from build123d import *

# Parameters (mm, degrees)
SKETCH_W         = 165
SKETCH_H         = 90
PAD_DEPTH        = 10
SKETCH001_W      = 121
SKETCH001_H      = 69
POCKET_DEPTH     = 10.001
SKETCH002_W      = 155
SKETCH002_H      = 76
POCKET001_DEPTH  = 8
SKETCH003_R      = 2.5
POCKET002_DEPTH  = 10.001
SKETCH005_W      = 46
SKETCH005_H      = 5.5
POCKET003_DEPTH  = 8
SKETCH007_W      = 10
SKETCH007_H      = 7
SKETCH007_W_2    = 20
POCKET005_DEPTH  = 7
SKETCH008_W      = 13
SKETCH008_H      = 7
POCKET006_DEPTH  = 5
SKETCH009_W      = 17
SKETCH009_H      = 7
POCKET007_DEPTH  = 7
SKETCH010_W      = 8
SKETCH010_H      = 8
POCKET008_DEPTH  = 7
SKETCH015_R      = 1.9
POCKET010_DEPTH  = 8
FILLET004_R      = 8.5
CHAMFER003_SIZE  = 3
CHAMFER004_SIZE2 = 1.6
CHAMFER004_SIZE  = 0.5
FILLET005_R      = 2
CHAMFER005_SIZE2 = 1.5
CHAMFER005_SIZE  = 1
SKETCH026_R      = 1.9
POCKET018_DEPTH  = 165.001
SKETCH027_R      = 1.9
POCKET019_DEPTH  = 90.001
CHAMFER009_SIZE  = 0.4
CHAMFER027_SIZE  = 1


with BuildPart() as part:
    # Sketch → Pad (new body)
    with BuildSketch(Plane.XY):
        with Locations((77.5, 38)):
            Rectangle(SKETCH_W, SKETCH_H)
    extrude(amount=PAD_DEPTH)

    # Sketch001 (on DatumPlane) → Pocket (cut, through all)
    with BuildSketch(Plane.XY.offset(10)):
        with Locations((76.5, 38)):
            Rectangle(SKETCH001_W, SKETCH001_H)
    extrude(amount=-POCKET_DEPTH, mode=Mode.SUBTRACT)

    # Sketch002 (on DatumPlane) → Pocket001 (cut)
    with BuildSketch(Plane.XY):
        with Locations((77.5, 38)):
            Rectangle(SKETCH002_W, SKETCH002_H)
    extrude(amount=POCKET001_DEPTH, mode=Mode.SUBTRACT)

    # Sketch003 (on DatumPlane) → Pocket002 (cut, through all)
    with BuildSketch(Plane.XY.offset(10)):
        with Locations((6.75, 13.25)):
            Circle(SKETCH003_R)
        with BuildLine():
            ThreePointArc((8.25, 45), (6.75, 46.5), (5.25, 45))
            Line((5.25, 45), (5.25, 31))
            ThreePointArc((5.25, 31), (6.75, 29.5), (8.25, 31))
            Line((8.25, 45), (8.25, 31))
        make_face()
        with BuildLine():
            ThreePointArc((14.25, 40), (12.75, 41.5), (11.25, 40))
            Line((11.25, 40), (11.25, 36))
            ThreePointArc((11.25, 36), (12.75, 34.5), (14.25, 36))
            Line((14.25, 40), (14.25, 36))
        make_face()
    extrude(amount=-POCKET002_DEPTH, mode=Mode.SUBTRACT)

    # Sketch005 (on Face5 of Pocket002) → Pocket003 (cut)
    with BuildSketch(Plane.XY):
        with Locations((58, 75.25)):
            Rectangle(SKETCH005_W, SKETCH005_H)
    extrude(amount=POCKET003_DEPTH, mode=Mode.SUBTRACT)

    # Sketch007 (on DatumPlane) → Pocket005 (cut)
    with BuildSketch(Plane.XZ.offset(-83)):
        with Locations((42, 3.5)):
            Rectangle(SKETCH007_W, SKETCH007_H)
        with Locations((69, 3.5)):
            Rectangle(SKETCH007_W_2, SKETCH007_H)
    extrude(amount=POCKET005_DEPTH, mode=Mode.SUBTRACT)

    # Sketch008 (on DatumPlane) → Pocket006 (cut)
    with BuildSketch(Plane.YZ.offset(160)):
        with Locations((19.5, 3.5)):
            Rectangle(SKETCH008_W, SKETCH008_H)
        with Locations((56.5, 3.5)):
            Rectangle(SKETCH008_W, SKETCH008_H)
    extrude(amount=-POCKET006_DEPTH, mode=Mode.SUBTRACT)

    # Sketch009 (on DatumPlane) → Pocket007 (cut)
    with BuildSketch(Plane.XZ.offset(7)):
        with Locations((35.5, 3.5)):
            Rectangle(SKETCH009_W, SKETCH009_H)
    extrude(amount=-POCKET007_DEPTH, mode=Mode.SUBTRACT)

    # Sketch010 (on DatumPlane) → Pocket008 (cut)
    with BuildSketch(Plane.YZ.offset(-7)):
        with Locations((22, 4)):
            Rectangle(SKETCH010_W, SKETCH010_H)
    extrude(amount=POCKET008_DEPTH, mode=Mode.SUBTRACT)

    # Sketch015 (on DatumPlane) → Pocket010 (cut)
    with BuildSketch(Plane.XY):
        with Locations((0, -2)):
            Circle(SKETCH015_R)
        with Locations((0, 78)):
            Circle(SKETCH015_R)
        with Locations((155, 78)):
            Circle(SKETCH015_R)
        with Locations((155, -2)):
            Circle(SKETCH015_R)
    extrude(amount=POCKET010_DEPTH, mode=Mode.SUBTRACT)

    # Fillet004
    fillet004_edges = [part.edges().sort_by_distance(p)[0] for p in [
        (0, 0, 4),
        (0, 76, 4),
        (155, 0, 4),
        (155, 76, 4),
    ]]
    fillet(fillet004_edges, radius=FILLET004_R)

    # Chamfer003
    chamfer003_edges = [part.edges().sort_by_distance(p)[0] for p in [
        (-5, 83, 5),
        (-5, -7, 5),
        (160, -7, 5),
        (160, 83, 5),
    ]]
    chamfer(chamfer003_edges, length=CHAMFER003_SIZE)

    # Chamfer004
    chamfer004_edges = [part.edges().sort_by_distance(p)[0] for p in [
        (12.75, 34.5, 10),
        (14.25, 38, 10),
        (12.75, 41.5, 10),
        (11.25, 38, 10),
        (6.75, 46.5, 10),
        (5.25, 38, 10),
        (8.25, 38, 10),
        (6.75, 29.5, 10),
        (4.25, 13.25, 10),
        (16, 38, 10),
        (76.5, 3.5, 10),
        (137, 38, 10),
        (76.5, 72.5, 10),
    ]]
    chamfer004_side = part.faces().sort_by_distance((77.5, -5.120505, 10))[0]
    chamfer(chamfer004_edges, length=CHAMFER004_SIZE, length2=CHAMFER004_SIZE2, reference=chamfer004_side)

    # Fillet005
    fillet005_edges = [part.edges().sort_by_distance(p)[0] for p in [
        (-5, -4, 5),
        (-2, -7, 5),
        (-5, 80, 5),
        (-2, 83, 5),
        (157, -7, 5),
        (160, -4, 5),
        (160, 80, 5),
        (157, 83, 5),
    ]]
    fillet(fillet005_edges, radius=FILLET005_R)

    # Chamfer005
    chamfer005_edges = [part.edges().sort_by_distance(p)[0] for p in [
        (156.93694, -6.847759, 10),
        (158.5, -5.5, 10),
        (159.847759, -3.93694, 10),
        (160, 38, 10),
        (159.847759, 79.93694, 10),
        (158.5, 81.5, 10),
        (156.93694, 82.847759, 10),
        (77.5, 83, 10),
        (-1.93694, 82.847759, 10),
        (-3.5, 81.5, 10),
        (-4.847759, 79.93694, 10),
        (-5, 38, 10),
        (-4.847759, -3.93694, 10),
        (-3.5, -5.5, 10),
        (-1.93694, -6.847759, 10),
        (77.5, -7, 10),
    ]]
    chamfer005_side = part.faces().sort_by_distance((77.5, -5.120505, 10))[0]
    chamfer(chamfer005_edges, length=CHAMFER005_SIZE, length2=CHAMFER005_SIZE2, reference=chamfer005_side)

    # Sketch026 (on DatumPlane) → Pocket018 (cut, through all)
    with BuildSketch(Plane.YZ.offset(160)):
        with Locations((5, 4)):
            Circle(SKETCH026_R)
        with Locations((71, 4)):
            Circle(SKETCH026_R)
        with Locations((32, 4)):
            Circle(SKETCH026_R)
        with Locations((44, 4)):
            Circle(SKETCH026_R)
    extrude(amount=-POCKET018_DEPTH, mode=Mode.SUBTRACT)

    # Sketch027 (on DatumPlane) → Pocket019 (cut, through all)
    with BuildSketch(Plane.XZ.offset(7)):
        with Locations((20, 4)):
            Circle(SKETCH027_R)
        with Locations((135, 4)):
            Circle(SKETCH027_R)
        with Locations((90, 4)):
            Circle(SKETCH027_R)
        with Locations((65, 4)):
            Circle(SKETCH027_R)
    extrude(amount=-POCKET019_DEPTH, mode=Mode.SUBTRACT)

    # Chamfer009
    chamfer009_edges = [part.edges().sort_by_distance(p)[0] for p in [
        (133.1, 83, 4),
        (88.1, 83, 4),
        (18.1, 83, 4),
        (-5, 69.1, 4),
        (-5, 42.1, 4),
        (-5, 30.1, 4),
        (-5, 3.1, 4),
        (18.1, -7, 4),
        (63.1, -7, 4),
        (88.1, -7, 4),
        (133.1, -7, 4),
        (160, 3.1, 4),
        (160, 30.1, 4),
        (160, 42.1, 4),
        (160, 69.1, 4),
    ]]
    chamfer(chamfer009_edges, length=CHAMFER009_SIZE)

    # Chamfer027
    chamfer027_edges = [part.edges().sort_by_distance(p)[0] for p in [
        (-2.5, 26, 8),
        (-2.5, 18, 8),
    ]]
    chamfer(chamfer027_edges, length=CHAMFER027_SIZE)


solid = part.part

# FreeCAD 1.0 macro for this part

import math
import FreeCAD as App
import Part
import Sketcher

V = App.Vector
Q = App.Units.Quantity


def edges_at(feature, points):
    """Names of the edges that pass closest to the given points."""
    edges = feature.Shape.Edges
    near = lambda p: min(range(len(edges)), key=lambda i: edges[i].distToShape(Part.Vertex(*p))[0])
    return sorted({f"Edge{near(p) + 1}" for p in points})


def add_polygon(sketch, points):
    """Adds a closed chain of lines whose ends are joined by coincident constraints."""
    first, n = sketch.GeometryCount, len(points)
    for a, b in zip(points, points[1:] + points[:1]):
        sketch.addGeometry(Part.LineSegment(App.Vector(*a, 0), App.Vector(*b, 0)), False)
    for i in range(n):
        sketch.addConstraint(Sketcher.Constraint("Coincident", first + i, 2, first + (i + 1) % n, 1))

doc = App.newDocument("Part")
body = doc.addObject("PartDesign::Body", "Body")

sketch1 = body.newObject("Sketcher::SketchObject", "Sketch")
sketch1.AttachmentSupport = (doc.getObject("XY_Plane"), [""])
sketch1.MapMode = "FlatFace"
add_polygon(sketch1, [(-5, 83), (-5, -7), (160, -7), (160, 83)])
sketch1.addConstraint([
    Sketcher.Constraint("Vertical", 0),
    Sketcher.Constraint("Horizontal", 1),
    Sketcher.Constraint("Vertical", 2),
    Sketcher.Constraint("Horizontal", 3),
    Sketcher.Constraint("DistanceX", 1, 1, 1, 2, Q("165 mm")),
    Sketcher.Constraint("DistanceY", 0, 2, 0, 1, Q("90 mm")),
    Sketcher.Constraint("DistanceX", 0, 2, -1, 1, Q("5 mm")),
    Sketcher.Constraint("DistanceY", 0, 2, -1, 1, Q("7 mm")),
])
pad1 = body.newObject("PartDesign::Pad", "Pad")
pad1.Profile = sketch1
pad1.Length = 10

sketch2 = body.newObject("Sketcher::SketchObject", "Sketch001")
sketch2.AttachmentSupport = (doc.getObject("XY_Plane"), [""])
sketch2.MapMode = "FlatFace"
sketch2.AttachmentOffset = App.Placement(V(0, 0, 10), App.Rotation())
add_polygon(sketch2, [(16, 72), (16, 4), (137, 4), (137, 72)])
sketch2.addConstraint([
    Sketcher.Constraint("Vertical", 0),
    Sketcher.Constraint("Horizontal", 1),
    Sketcher.Constraint("Vertical", 2),
    Sketcher.Constraint("Horizontal", 3),
    Sketcher.Constraint("DistanceX", 1, 1, 1, 2, Q("121 mm")),
    Sketcher.Constraint("DistanceY", 0, 2, 0, 1, Q("69 mm")),
    Sketcher.Constraint("DistanceX", -1, 1, 0, 2, Q("16 mm")),
    Sketcher.Constraint("DistanceY", -1, 1, 0, 2, Q("3.5 mm")),
])
pocket1 = body.newObject("PartDesign::Pocket", "Pocket")
pocket1.Profile = sketch2
pocket1.Type = "ThroughAll"

sketch3 = body.newObject("Sketcher::SketchObject", "Sketch002")
sketch3.AttachmentSupport = (doc.getObject("XY_Plane"), [""])
sketch3.MapMode = "FlatFace"
add_polygon(sketch3, [(0, 76), (0, 0), (155, 0), (155, 76)])
sketch3.addConstraint([
    Sketcher.Constraint("Vertical", 0),
    Sketcher.Constraint("Horizontal", 1),
    Sketcher.Constraint("Vertical", 2),
    Sketcher.Constraint("Horizontal", 3),
    Sketcher.Constraint("Coincident", 0, 2, -1, 1),
    Sketcher.Constraint("DistanceX", 1, 1, 1, 2, Q("155 mm")),
    Sketcher.Constraint("DistanceY", 0, 2, 0, 1, Q("76 mm")),
])
pocket2 = body.newObject("PartDesign::Pocket", "Pocket001")
pocket2.Profile = sketch3
pocket2.Length = 8
pocket2.Reversed = True

sketch4 = body.newObject("Sketcher::SketchObject", "Sketch003")
sketch4.AttachmentSupport = (doc.getObject("XY_Plane"), [""])
sketch4.MapMode = "FlatFace"
sketch4.AttachmentOffset = App.Placement(V(0, 0, 10), App.Rotation())
sketch4.addGeometry([
    Part.Circle(V(6.8, 13.2, 0), V(0, 0, 1), 2.5),
    Part.ArcOfCircle(Part.Circle(V(6.8, 45, 0), V(0, 0, 1), 1.5), math.radians(0), math.radians(180)),
    Part.LineSegment(V(5.2, 45, 0), V(5.2, 31, 0)),
    Part.ArcOfCircle(Part.Circle(V(6.8, 31, 0), V(0, 0, 1), 1.5), math.radians(180), math.radians(360)),
    Part.LineSegment(V(8.2, 31, 0), V(8.2, 45, 0)),
    Part.ArcOfCircle(Part.Circle(V(12.8, 40, 0), V(0, 0, 1), 1.5), math.radians(0), math.radians(180)),
    Part.LineSegment(V(11.2, 40, 0), V(11.2, 36, 0)),
    Part.ArcOfCircle(Part.Circle(V(12.8, 36, 0), V(0, 0, 1), 1.5), math.radians(180), math.radians(360)),
    Part.LineSegment(V(14.2, 36, 0), V(14.2, 40, 0)),
], False)
sketch4.addConstraint([
    Sketcher.Constraint("Tangent", 1, 2, 2, 1),
    Sketcher.Constraint("Tangent", 2, 2, 3, 1),
    Sketcher.Constraint("Tangent", 3, 2, 4, 1),
    Sketcher.Constraint("Tangent", 4, 2, 1, 1),
    Sketcher.Constraint("Tangent", 5, 2, 6, 1),
    Sketcher.Constraint("Tangent", 6, 2, 7, 1),
    Sketcher.Constraint("Tangent", 7, 2, 8, 1),
    Sketcher.Constraint("Tangent", 8, 2, 5, 1),
    Sketcher.Constraint("Vertical", 2),
    Sketcher.Constraint("Vertical", 4),
    Sketcher.Constraint("Vertical", 6),
    Sketcher.Constraint("Vertical", 8),
    Sketcher.Constraint("Equal", 3, 5),
    Sketcher.Constraint("Vertical", 0, 3, 1, 3),
    Sketcher.Constraint("Diameter", 0, Q("5 mm")),
    Sketcher.Constraint("Radius", 1, Q("1.5 mm")),
    Sketcher.Constraint("DistanceY", 2, 2, 2, 1, Q("14 mm")),
    Sketcher.Constraint("DistanceY", 6, 2, 6, 1, Q("4 mm")),
    Sketcher.Constraint("DistanceY", -1, 1, 1, 3, Q("45 mm")),
    Sketcher.Constraint("DistanceY", -1, 1, 5, 3, Q("40 mm")),
    Sketcher.Constraint("DistanceX", 1, 3, 5, 3, Q("6 mm")),
    Sketcher.Constraint("DistanceX", -1, 1, 0, 3, Q("6.75 mm")),
    Sketcher.Constraint("DistanceY", -1, 1, 0, 3, Q("13.25 mm")),
])
pocket3 = body.newObject("PartDesign::Pocket", "Pocket002")
pocket3.Profile = sketch4
pocket3.Type = "ThroughAll"

sketch5 = body.newObject("Sketcher::SketchObject", "Sketch004")
sketch5.AttachmentSupport = (doc.getObject("XY_Plane"), [""])
sketch5.MapMode = "FlatFace"
add_polygon(sketch5, [(35, 78), (35, 72), (81, 72), (81, 78)])
sketch5.addConstraint([
    Sketcher.Constraint("Vertical", 0),
    Sketcher.Constraint("Horizontal", 1),
    Sketcher.Constraint("Vertical", 2),
    Sketcher.Constraint("Horizontal", 3),
    Sketcher.Constraint("DistanceX", 1, 1, 1, 2, Q("46 mm")),
    Sketcher.Constraint("DistanceY", 0, 2, 0, 1, Q("5.5 mm")),
    Sketcher.Constraint("DistanceX", -1, 1, 0, 2, Q("35 mm")),
    Sketcher.Constraint("DistanceY", -1, 1, 2, 2, Q("78 mm")),
])
pocket4 = body.newObject("PartDesign::Pocket", "Pocket003")
pocket4.Profile = sketch5
pocket4.Length = 8
pocket4.Reversed = True

sketch6 = body.newObject("Sketcher::SketchObject", "Sketch005")
sketch6.AttachmentSupport = (doc.getObject("XZ_Plane"), [""])
sketch6.MapMode = "FlatFace"
sketch6.AttachmentOffset = App.Placement(V(0, 0, -83), App.Rotation())
add_polygon(sketch6, [(37, 7), (37, 0), (47, 0), (47, 7)])
add_polygon(sketch6, [(59, 7), (59, 0), (79, 0), (79, 7)])
sketch6.addConstraint([
    Sketcher.Constraint("Vertical", 0),
    Sketcher.Constraint("Horizontal", 1),
    Sketcher.Constraint("Vertical", 2),
    Sketcher.Constraint("Horizontal", 3),
    Sketcher.Constraint("Vertical", 4),
    Sketcher.Constraint("Horizontal", 5),
    Sketcher.Constraint("Vertical", 6),
    Sketcher.Constraint("Horizontal", 7),
    Sketcher.Constraint("PointOnObject", 0, 2, -1),
    Sketcher.Constraint("PointOnObject", 4, 2, -1),
    Sketcher.Constraint("Horizontal", 3, 2, 6, 2),
    Sketcher.Constraint("DistanceX", 1, 1, 1, 2, Q("10 mm")),
    Sketcher.Constraint("DistanceX", 5, 1, 5, 2, Q("20 mm")),
    Sketcher.Constraint("DistanceY", 0, 2, 0, 1, Q("7 mm")),
    Sketcher.Constraint("DistanceX", -1, 1, 0, 2, Q("37 mm")),
    Sketcher.Constraint("DistanceX", -1, 1, 4, 2, Q("59 mm")),
])
pocket5 = body.newObject("PartDesign::Pocket", "Pocket004")
pocket5.Profile = sketch6
pocket5.Length = 7
pocket5.Reversed = True

sketch7 = body.newObject("Sketcher::SketchObject", "Sketch006")
sketch7.AttachmentSupport = (doc.getObject("YZ_Plane"), [""])
sketch7.MapMode = "FlatFace"
sketch7.AttachmentOffset = App.Placement(V(0, 0, 160), App.Rotation())
add_polygon(sketch7, [(13, 7), (13, 0), (26, 0), (26, 7)])
add_polygon(sketch7, [(50, 7), (50, 0), (63, 0), (63, 7)])
sketch7.addConstraint([
    Sketcher.Constraint("Vertical", 0),
    Sketcher.Constraint("Horizontal", 1),
    Sketcher.Constraint("Vertical", 2),
    Sketcher.Constraint("Horizontal", 3),
    Sketcher.Constraint("Vertical", 4),
    Sketcher.Constraint("Horizontal", 5),
    Sketcher.Constraint("Vertical", 6),
    Sketcher.Constraint("Horizontal", 7),
    Sketcher.Constraint("PointOnObject", 0, 2, -1),
    Sketcher.Constraint("PointOnObject", 4, 2, -1),
    Sketcher.Constraint("Horizontal", 3, 2, 6, 2),
    Sketcher.Constraint("Equal", 3, 5),
    Sketcher.Constraint("DistanceX", 1, 1, 1, 2, Q("13 mm")),
    Sketcher.Constraint("DistanceY", 0, 2, 0, 1, Q("7 mm")),
    Sketcher.Constraint("DistanceX", -1, 1, 0, 2, Q("13 mm")),
    Sketcher.Constraint("DistanceX", -1, 1, 4, 2, Q("50 mm")),
])
pocket6 = body.newObject("PartDesign::Pocket", "Pocket005")
pocket6.Profile = sketch7
pocket6.Length = 5

sketch8 = body.newObject("Sketcher::SketchObject", "Sketch007")
sketch8.AttachmentSupport = (doc.getObject("XZ_Plane"), [""])
sketch8.MapMode = "FlatFace"
sketch8.AttachmentOffset = App.Placement(V(0, 0, 7), App.Rotation())
add_polygon(sketch8, [(27, 7), (27, 0), (44, 0), (44, 7)])
sketch8.addConstraint([
    Sketcher.Constraint("Vertical", 0),
    Sketcher.Constraint("Horizontal", 1),
    Sketcher.Constraint("Vertical", 2),
    Sketcher.Constraint("Horizontal", 3),
    Sketcher.Constraint("PointOnObject", 0, 2, -1),
    Sketcher.Constraint("DistanceX", 1, 1, 1, 2, Q("17 mm")),
    Sketcher.Constraint("DistanceY", 0, 2, 0, 1, Q("7 mm")),
    Sketcher.Constraint("DistanceX", -1, 1, 0, 2, Q("27 mm")),
])
pocket7 = body.newObject("PartDesign::Pocket", "Pocket006")
pocket7.Profile = sketch8
pocket7.Length = 7

sketch9 = body.newObject("Sketcher::SketchObject", "Sketch008")
sketch9.AttachmentSupport = (doc.getObject("YZ_Plane"), [""])
sketch9.MapMode = "FlatFace"
sketch9.AttachmentOffset = App.Placement(V(0, 0, -7), App.Rotation())
add_polygon(sketch9, [(18, 8), (18, 0), (26, 0), (26, 8)])
sketch9.addConstraint([
    Sketcher.Constraint("Vertical", 0),
    Sketcher.Constraint("Horizontal", 1),
    Sketcher.Constraint("Vertical", 2),
    Sketcher.Constraint("Horizontal", 3),
    Sketcher.Constraint("PointOnObject", 0, 2, -1),
    Sketcher.Constraint("Equal", 3, 0),
    Sketcher.Constraint("DistanceX", 1, 1, 1, 2, Q("8 mm")),
    Sketcher.Constraint("DistanceX", -1, 1, 0, 2, Q("18 mm")),
])
pocket8 = body.newObject("PartDesign::Pocket", "Pocket007")
pocket8.Profile = sketch9
pocket8.Length = 7
pocket8.Reversed = True

sketch10 = body.newObject("Sketcher::SketchObject", "Sketch009")
sketch10.AttachmentSupport = (doc.getObject("XY_Plane"), [""])
sketch10.MapMode = "FlatFace"
sketch10.addGeometry([
    Part.Circle(V(0, -2, 0), V(0, 0, 1), 1.9),
    Part.Circle(V(0, 78, 0), V(0, 0, 1), 1.9),
    Part.Circle(V(155, 78, 0), V(0, 0, 1), 1.9),
    Part.Circle(V(155, -2, 0), V(0, 0, 1), 1.9),
], False)
sketch10.addConstraint([
    Sketcher.Constraint("Equal", 0, 1),
    Sketcher.Constraint("Equal", 1, 2),
    Sketcher.Constraint("Equal", 2, 3),
    Sketcher.Constraint("PointOnObject", 0, 3, -2),
    Sketcher.Constraint("PointOnObject", 1, 3, -2),
    Sketcher.Constraint("Horizontal", 1, 3, 2, 3),
    Sketcher.Constraint("Horizontal", 0, 3, 3, 3),
    Sketcher.Constraint("Vertical", 2, 3, 3, 3),
    Sketcher.Constraint("Diameter", 0, Q("3.8 mm")),
    Sketcher.Constraint("DistanceY", 0, 3, -1, 1, Q("2 mm")),
    Sketcher.Constraint("DistanceY", -1, 1, 1, 3, Q("78 mm")),
    Sketcher.Constraint("DistanceX", -1, 1, 2, 3, Q("155 mm")),
])
pocket9 = body.newObject("PartDesign::Pocket", "Pocket008")
pocket9.Profile = sketch10
pocket9.Length = 8
pocket9.Reversed = True
doc.recompute()

fillet = body.newObject("PartDesign::Fillet", "Fillet")
fillet.Base = (pocket9, edges_at(pocket9, [
    (0, 0, 4),
    (0, 76, 4),
    (155, 0, 4),
    (155, 76, 4),
]))
fillet.Radius = 8.5
doc.recompute()

chamfer = body.newObject("PartDesign::Chamfer", "Chamfer")
chamfer.Base = (fillet, edges_at(fillet, [
    (-5, 83, 5),
    (-5, -7, 5),
    (160, -7, 5),
    (160, 83, 5),
]))
chamfer.Size = 3
doc.recompute()

chamfer2 = body.newObject("PartDesign::Chamfer", "Chamfer001")
chamfer2.Base = (chamfer, edges_at(chamfer, [
    (12.75, 34.5, 10),
    (14.25, 38, 10),
    (12.75, 41.5, 10),
    (11.25, 38, 10),
    (6.75, 46.5, 10),
    (5.25, 38, 10),
    (8.25, 38, 10),
    (6.75, 29.5, 10),
    (4.25, 13.25, 10),
    (16, 38, 10),
    (76.5, 3.5, 10),
    (137, 38, 10),
    (76.5, 72.5, 10),
]))
chamfer2.ChamferType = "Two distances"
chamfer2.Size = 0.5
chamfer2.Size2 = 1.6
doc.recompute()

fillet2 = body.newObject("PartDesign::Fillet", "Fillet001")
fillet2.Base = (chamfer2, edges_at(chamfer2, [
    (-5, -4, 5),
    (-2, -7, 5),
    (-5, 80, 5),
    (-2, 83, 5),
    (157, -7, 5),
    (160, -4, 5),
    (160, 80, 5),
    (157, 83, 5),
]))
fillet2.Radius = 2
doc.recompute()

chamfer3 = body.newObject("PartDesign::Chamfer", "Chamfer002")
chamfer3.Base = (fillet2, edges_at(fillet2, [
    (156.937, -6.848, 10),
    (158.5, -5.5, 10),
    (159.848, -3.937, 10),
    (160, 38, 10),
    (159.848, 79.937, 10),
    (158.5, 81.5, 10),
    (156.937, 82.848, 10),
    (77.5, 83, 10),
    (-1.937, 82.848, 10),
    (-3.5, 81.5, 10),
    (-4.848, 79.937, 10),
    (-5, 38, 10),
    (-4.848, -3.937, 10),
    (-3.5, -5.5, 10),
    (-1.937, -6.848, 10),
    (77.5, -7, 10),
]))
chamfer3.ChamferType = "Two distances"
chamfer3.Size = 1
chamfer3.Size2 = 1.5

sketch11 = body.newObject("Sketcher::SketchObject", "Sketch010")
sketch11.AttachmentSupport = (doc.getObject("YZ_Plane"), [""])
sketch11.MapMode = "FlatFace"
sketch11.AttachmentOffset = App.Placement(V(0, 0, 160), App.Rotation())
sketch11.addGeometry([
    Part.Circle(V(5, 4, 0), V(0, 0, 1), 1.9),
    Part.Circle(V(71, 4, 0), V(0, 0, 1), 1.9),
    Part.Circle(V(32, 4, 0), V(0, 0, 1), 1.9),
    Part.Circle(V(44, 4, 0), V(0, 0, 1), 1.9),
], False)
sketch11.addConstraint([
    Sketcher.Constraint("Equal", 0, 1),
    Sketcher.Constraint("Equal", 1, 2),
    Sketcher.Constraint("Equal", 2, 3),
    Sketcher.Constraint("Horizontal", 0, 3, 1, 3),
    Sketcher.Constraint("Horizontal", 1, 3, 2, 3),
    Sketcher.Constraint("Horizontal", 2, 3, 3, 3),
    Sketcher.Constraint("Diameter", 0, Q("3.8 mm")),
    Sketcher.Constraint("DistanceX", -1, 1, 0, 3, Q("5 mm")),
    Sketcher.Constraint("DistanceY", -1, 1, 0, 3, Q("4 mm")),
    Sketcher.Constraint("DistanceX", -1, 1, 1, 3, Q("71 mm")),
    Sketcher.Constraint("DistanceX", -1, 1, 2, 3, Q("32 mm")),
    Sketcher.Constraint("DistanceX", -1, 1, 3, 3, Q("44 mm")),
])
pocket10 = body.newObject("PartDesign::Pocket", "Pocket009")
pocket10.Profile = sketch11
pocket10.Type = "ThroughAll"

sketch12 = body.newObject("Sketcher::SketchObject", "Sketch011")
sketch12.AttachmentSupport = (doc.getObject("XZ_Plane"), [""])
sketch12.MapMode = "FlatFace"
sketch12.AttachmentOffset = App.Placement(V(0, 0, 7), App.Rotation())
sketch12.addGeometry([
    Part.Circle(V(20, 4, 0), V(0, 0, 1), 1.9),
    Part.Circle(V(135, 4, 0), V(0, 0, 1), 1.9),
    Part.Circle(V(90, 4, 0), V(0, 0, 1), 1.9),
    Part.Circle(V(65, 4, 0), V(0, 0, 1), 1.9),
], False)
sketch12.addConstraint([
    Sketcher.Constraint("Equal", 0, 1),
    Sketcher.Constraint("Equal", 1, 2),
    Sketcher.Constraint("Equal", 2, 3),
    Sketcher.Constraint("Horizontal", 0, 3, 1, 3),
    Sketcher.Constraint("Horizontal", 1, 3, 2, 3),
    Sketcher.Constraint("Horizontal", 2, 3, 3, 3),
    Sketcher.Constraint("Diameter", 0, Q("3.8 mm")),
    Sketcher.Constraint("DistanceX", -1, 1, 0, 3, Q("20 mm")),
    Sketcher.Constraint("DistanceY", -1, 1, 0, 3, Q("4 mm")),
    Sketcher.Constraint("DistanceX", -1, 1, 1, 3, Q("135 mm")),
    Sketcher.Constraint("DistanceX", -1, 1, 2, 3, Q("90 mm")),
    Sketcher.Constraint("DistanceX", -1, 1, 3, 3, Q("65 mm")),
])
pocket11 = body.newObject("PartDesign::Pocket", "Pocket010")
pocket11.Profile = sketch12
pocket11.Type = "ThroughAll"
doc.recompute()

chamfer4 = body.newObject("PartDesign::Chamfer", "Chamfer003")
chamfer4.Base = (pocket11, edges_at(pocket11, [
    (133.1, 83, 4),
    (88.1, 83, 4),
    (18.1, 83, 4),
    (-5, 69.1, 4),
    (-5, 42.1, 4),
    (-5, 30.1, 4),
    (-5, 3.1, 4),
    (18.1, -7, 4),
    (63.1, -7, 4),
    (88.1, -7, 4),
    (133.1, -7, 4),
    (160, 3.1, 4),
    (160, 30.1, 4),
    (160, 42.1, 4),
    (160, 69.1, 4),
]))
chamfer4.Size = 0.4
doc.recompute()

chamfer5 = body.newObject("PartDesign::Chamfer", "Chamfer004")
chamfer5.Base = (chamfer4, edges_at(chamfer4, [(-2.5, 26, 8), (-2.5, 18, 8)]))
chamfer5.Size = 1

doc.recompute()
